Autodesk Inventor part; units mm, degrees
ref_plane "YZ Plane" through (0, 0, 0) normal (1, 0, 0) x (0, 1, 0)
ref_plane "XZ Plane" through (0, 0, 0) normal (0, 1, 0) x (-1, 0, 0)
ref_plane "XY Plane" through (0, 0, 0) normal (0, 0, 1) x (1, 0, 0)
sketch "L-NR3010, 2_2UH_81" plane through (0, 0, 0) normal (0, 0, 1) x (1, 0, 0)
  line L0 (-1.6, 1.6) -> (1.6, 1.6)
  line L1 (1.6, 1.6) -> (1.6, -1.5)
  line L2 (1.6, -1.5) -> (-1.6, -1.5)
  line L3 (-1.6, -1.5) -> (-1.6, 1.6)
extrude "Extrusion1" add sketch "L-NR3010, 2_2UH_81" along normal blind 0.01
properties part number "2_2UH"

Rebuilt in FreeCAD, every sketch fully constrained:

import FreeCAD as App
import Part
import Sketcher

doc = App.newDocument("Part")
body = doc.addObject("PartDesign::Body", "Body")

# Sketch on XY plane
sketch1 = body.newObject("Sketcher::SketchObject", "Sketch")
sketch1.AttachmentSupport = (doc.getObject("XY_Plane"), [""])
sketch1.MapMode = "FlatFace"
sketch1.addGeometry([
    Part.LineSegment(App.Vector(1.6, 1.6, 0), App.Vector(-1.6, 1.6, 0)),
    Part.LineSegment(App.Vector(-1.6, 1.6, 0), App.Vector(-1.6, -1.5, 0)),
    Part.LineSegment(App.Vector(-1.6, -1.5, 0), App.Vector(1.6, -1.5, 0)),
    Part.LineSegment(App.Vector(1.6, -1.5, 0), App.Vector(1.6, 1.6, 0)),
], False)
sketch1.addConstraint([
    Sketcher.Constraint("Coincident", 0, 2, 1, 1),
    Sketcher.Constraint("Coincident", 1, 2, 2, 1),
    Sketcher.Constraint("Coincident", 2, 2, 3, 1),
    Sketcher.Constraint("Coincident", 3, 2, 0, 1),
    Sketcher.Constraint("Horizontal", 0),
    Sketcher.Constraint("Vertical", 1),
    Sketcher.Constraint("Horizontal", 2),
    Sketcher.Constraint("Vertical", 3),
    Sketcher.Constraint("DistanceX", 0, 2, 0, 1, 3.2),
    Sketcher.Constraint("DistanceY", 1, 2, 1, 1, 3.1),
    Sketcher.Constraint("DistanceX", 0, 2, -1, 1, 1.6),
    Sketcher.Constraint("DistanceY", -1, 1, 0, 2, 1.6),
])
pad1 = body.newObject("PartDesign::Pad", "Pad")
pad1.Profile = sketch1
pad1.Length = 0.01

doc.recompute()
